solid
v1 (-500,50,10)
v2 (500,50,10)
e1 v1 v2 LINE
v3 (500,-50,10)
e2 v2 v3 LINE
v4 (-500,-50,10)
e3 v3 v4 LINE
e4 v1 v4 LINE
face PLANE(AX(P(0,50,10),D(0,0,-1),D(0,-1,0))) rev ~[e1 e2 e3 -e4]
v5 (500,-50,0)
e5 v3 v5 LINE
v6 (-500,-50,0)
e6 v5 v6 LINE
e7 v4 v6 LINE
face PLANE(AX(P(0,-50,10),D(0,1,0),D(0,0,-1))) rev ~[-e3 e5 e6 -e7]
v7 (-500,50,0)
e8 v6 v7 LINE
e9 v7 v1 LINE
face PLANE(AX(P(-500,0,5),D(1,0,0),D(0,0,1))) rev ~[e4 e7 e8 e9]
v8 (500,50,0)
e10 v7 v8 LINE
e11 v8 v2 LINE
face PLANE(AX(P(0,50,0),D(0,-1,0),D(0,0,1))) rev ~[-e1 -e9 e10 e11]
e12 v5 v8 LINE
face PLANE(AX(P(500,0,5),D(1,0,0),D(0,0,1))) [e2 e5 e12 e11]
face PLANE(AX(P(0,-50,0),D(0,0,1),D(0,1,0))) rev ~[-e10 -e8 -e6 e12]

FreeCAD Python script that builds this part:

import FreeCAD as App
import Part
import Sketcher

doc = App.newDocument("Part")
body = doc.addObject("PartDesign::Body", "Body")

# Sketch on YZ plane
sketch1 = body.newObject("Sketcher::SketchObject", "Sketch")
sketch1.AttachmentSupport = (doc.getObject("YZ_Plane"), [""])
sketch1.MapMode = "FlatFace"
sketch1.addGeometry(Part.LineSegment(App.Vector(-50, 10, 0), App.Vector(-50, 0, 0)), False)
sketch1.addGeometry(Part.LineSegment(App.Vector(-50, 0, 0), App.Vector(50, 0, 0)), False)
sketch1.addGeometry(Part.LineSegment(App.Vector(50, 0, 0), App.Vector(50, 10, 0)), False)
sketch1.addGeometry(Part.LineSegment(App.Vector(50, 10, 0), App.Vector(-50, 10, 0)), False)
sketch1.addConstraint(Sketcher.Constraint("Coincident", 0, 2, 1, 1))
sketch1.addConstraint(Sketcher.Constraint("Coincident", 1, 2, 2, 1))
sketch1.addConstraint(Sketcher.Constraint("Coincident", 2, 2, 3, 1))
sketch1.addConstraint(Sketcher.Constraint("Coincident", 3, 2, 0, 1))
sketch1.addConstraint(Sketcher.Constraint("Vertical", 0))
sketch1.addConstraint(Sketcher.Constraint("Horizontal", 1))
sketch1.addConstraint(Sketcher.Constraint("Vertical", 2))
sketch1.addConstraint(Sketcher.Constraint("Horizontal", 3))
sketch1.addConstraint(Sketcher.Constraint("Symmetric", 0, 2, 1, 2, -1, 1))
sketch1.addConstraint(Sketcher.Constraint("DistanceX", 0, 2, -1, 1, 50.0))
sketch1.addConstraint(Sketcher.Constraint("DistanceY", 0, 2, 0, 1, 10.0))
pad1 = body.newObject("PartDesign::Pad", "Pad")
pad1.Profile = sketch1
pad1.Length = 1000
pad1.Midplane = True

doc.recompute()
